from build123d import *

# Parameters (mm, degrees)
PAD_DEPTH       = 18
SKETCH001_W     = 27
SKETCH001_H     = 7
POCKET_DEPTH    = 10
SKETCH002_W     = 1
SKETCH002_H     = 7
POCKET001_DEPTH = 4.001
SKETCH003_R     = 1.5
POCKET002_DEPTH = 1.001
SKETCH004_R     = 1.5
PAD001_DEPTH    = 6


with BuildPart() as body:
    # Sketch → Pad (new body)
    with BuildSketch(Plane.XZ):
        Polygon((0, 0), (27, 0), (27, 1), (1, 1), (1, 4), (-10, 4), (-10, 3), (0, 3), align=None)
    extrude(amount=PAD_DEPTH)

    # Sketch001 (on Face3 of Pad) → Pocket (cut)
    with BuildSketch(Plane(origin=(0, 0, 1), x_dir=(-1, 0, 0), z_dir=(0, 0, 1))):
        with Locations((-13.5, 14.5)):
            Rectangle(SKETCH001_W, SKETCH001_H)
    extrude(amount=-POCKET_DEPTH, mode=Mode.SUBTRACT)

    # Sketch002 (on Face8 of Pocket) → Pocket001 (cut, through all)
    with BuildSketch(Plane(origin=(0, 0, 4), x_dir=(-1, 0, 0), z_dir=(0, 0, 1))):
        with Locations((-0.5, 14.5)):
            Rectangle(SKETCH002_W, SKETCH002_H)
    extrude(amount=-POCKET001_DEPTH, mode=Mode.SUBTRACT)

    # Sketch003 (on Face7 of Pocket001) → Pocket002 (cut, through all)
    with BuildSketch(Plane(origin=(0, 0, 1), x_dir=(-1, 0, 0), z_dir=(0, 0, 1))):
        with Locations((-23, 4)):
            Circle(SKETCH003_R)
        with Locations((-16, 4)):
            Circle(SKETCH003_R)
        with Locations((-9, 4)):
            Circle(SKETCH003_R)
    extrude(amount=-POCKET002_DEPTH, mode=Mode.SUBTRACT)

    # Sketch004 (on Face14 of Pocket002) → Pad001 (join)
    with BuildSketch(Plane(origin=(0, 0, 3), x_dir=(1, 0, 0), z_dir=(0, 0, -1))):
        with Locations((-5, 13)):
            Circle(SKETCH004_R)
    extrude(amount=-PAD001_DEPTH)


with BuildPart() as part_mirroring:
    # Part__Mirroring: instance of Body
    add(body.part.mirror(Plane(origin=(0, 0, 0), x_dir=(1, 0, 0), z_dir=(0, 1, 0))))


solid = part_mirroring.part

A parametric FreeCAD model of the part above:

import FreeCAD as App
import Part
import Sketcher

V = App.Vector


def add_polygon(sketch, points):
    """Adds a closed chain of lines whose ends are joined by coincident constraints."""
    first, n = sketch.GeometryCount, len(points)
    for a, b in zip(points, points[1:] + points[:1]):
        sketch.addGeometry(Part.LineSegment(App.Vector(*a, 0), App.Vector(*b, 0)), False)
    for i in range(n):
        sketch.addConstraint(Sketcher.Constraint("Coincident", first + i, 2, first + (i + 1) % n, 1))

doc = App.newDocument("Part")
body = doc.addObject("PartDesign::Body", "Body")

sketch1 = doc.addObject("Sketcher::SketchObject", "Sketch")
body.addObject(sketch1)
sketch1.AttachmentSupport = (doc.XZ_Plane, [""])
sketch1.MapMode = "FlatFace"
add_polygon(sketch1, [(0, 0), (27, 0), (27, 1), (1, 1), (1, 4), (-10, 4), (-10, 3), (0, 3)])
sketch1.addConstraint([
    Sketcher.Constraint("Horizontal", 0),
    Sketcher.Constraint("Vertical", 1),
    Sketcher.Constraint("Horizontal", 2),
    Sketcher.Constraint("Vertical", 3),
    Sketcher.Constraint("Horizontal", 4),
    Sketcher.Constraint("Vertical", 5),
    Sketcher.Constraint("Horizontal", 6),
    Sketcher.Constraint("Vertical", 7),
    Sketcher.Constraint("Coincident", 7, 2, -1, 1),
    Sketcher.Constraint("Equal", 1, 5),
    Sketcher.Constraint("DistanceX", 0, 1, 0, 2, 27.0),
    Sketcher.Constraint("DistanceX", 2, 2, 2, 1, 26.0),
    Sketcher.Constraint("DistanceX", 4, 2, 4, 1, 11.0),
    Sketcher.Constraint("DistanceY", 1, 1, 1, 2, 1.0),
    Sketcher.Constraint("DistanceY", 3, 1, 3, 2, 3.0),
])
pad1 = doc.addObject("PartDesign::Pad", "Pad")
body.addObject(pad1)
pad1.Profile = sketch1
pad1.Length = 18

sketch2 = doc.addObject("Sketcher::SketchObject", "Sketch001")
body.addObject(sketch2)
sketch2.AttachmentSupport = (doc.XY_Plane, [""])
sketch2.MapMode = "FlatFace"
sketch2.AttachmentOffset = App.Placement(V(0, 0, 1), App.Rotation())
add_polygon(sketch2, [(27, -18), (27, -11), (0, -11), (0, -18)])
sketch2.addConstraint([
    Sketcher.Constraint("Vertical", 0),
    Sketcher.Constraint("Horizontal", 1),
    Sketcher.Constraint("Vertical", 2),
    Sketcher.Constraint("Horizontal", 3),
    Sketcher.Constraint("PointOnObject", 1, 2, -2),
    Sketcher.Constraint("DistanceX", 1, 2, 1, 1, 27.0),
    Sketcher.Constraint("DistanceY", 0, 1, 0, 2, 7.0),
    Sketcher.Constraint("DistanceY", 0, 2, -1, 1, 11.0),
])
pocket1 = doc.addObject("PartDesign::Pocket", "Pocket")
body.addObject(pocket1)
pocket1.Profile = sketch2
pocket1.Length = 10

sketch3 = doc.addObject("Sketcher::SketchObject", "Sketch002")
body.addObject(sketch3)
sketch3.AttachmentSupport = (doc.XY_Plane, [""])
sketch3.MapMode = "FlatFace"
sketch3.AttachmentOffset = App.Placement(V(0, 0, 4), App.Rotation())
add_polygon(sketch3, [(1, -18), (1, -11), (0, -11), (0, -18)])
sketch3.addConstraint([
    Sketcher.Constraint("Vertical", 0),
    Sketcher.Constraint("Horizontal", 1),
    Sketcher.Constraint("Vertical", 2),
    Sketcher.Constraint("Horizontal", 3),
    Sketcher.Constraint("PointOnObject", 1, 2, -2),
    Sketcher.Constraint("DistanceX", 1, 2, 1, 1, 1.0),
    Sketcher.Constraint("DistanceY", 0, 1, 0, 2, 7.0),
    Sketcher.Constraint("DistanceY", 0, 2, -1, 1, 11.0),
])
pocket2 = doc.addObject("PartDesign::Pocket", "Pocket001")
body.addObject(pocket2)
pocket2.Profile = sketch3
pocket2.Type = "ThroughAll"

sketch4 = doc.addObject("Sketcher::SketchObject", "Sketch003")
body.addObject(sketch4)
sketch4.AttachmentSupport = (doc.XY_Plane, [""])
sketch4.MapMode = "FlatFace"
sketch4.AttachmentOffset = App.Placement(V(0, 0, 1), App.Rotation())
sketch4.addGeometry([
    Part.Circle(V(23, -4, 0), V(0, 0, 1), 1.5),
    Part.Circle(V(16, -4, 0), V(0, 0, 1), 1.5),
    Part.Circle(V(9, -4, 0), V(0, 0, 1), 1.5),
], False)
sketch4.addConstraint([
    Sketcher.Constraint("Equal", 0, 1),
    Sketcher.Constraint("Equal", 1, 2),
    Sketcher.Constraint("Horizontal", 0, 3, 1, 3),
    Sketcher.Constraint("Horizontal", 1, 3, 2, 3),
    Sketcher.Constraint("Diameter", 0, 3.0),
    Sketcher.Constraint("DistanceX", -1, 1, 0, 3, 23.0),
    Sketcher.Constraint("DistanceY", 0, 3, -1, 1, 4.0),
    Sketcher.Constraint("DistanceX", -1, 1, 1, 3, 16.0),
    Sketcher.Constraint("DistanceX", -1, 1, 2, 3, 9.0),
])
pocket3 = doc.addObject("PartDesign::Pocket", "Pocket002")
body.addObject(pocket3)
pocket3.Profile = sketch4
pocket3.Type = "ThroughAll"

sketch5 = doc.addObject("Sketcher::SketchObject", "Sketch004")
body.addObject(sketch5)
sketch5.AttachmentSupport = (doc.XY_Plane, [""])
sketch5.MapMode = "FlatFace"
sketch5.AttachmentOffset = App.Placement(V(0, 0, 3), App.Rotation())
sketch5.addGeometry(Part.Circle(V(-5, -13, 0), V(0, 0, 1), 1.5), False)
sketch5.addConstraint([
    Sketcher.Constraint("Diameter", 0, 3.0),
    Sketcher.Constraint("DistanceX", 0, 3, -1, 1, 5.0),
    Sketcher.Constraint("DistanceY", 0, 3, -1, 1, 13.0),
])
pad2 = doc.addObject("PartDesign::Pad", "Pad001")
body.addObject(pad2)
pad2.Profile = sketch5
pad2.Length = 6
body2 = doc.addObject("PartDesign::Body", "Body001")
doc.recompute()

mirroring = doc.addObject("Part::Mirroring", "Mirroring")
mirroring.Source = body
mirroring.Base = V(0, 0, 0)
mirroring.Normal = V(0, 1, 0)
body2.BaseFeature = mirroring
doc.recompute()
body.Visibility = False
mirroring.Visibility = False

doc.recompute()
